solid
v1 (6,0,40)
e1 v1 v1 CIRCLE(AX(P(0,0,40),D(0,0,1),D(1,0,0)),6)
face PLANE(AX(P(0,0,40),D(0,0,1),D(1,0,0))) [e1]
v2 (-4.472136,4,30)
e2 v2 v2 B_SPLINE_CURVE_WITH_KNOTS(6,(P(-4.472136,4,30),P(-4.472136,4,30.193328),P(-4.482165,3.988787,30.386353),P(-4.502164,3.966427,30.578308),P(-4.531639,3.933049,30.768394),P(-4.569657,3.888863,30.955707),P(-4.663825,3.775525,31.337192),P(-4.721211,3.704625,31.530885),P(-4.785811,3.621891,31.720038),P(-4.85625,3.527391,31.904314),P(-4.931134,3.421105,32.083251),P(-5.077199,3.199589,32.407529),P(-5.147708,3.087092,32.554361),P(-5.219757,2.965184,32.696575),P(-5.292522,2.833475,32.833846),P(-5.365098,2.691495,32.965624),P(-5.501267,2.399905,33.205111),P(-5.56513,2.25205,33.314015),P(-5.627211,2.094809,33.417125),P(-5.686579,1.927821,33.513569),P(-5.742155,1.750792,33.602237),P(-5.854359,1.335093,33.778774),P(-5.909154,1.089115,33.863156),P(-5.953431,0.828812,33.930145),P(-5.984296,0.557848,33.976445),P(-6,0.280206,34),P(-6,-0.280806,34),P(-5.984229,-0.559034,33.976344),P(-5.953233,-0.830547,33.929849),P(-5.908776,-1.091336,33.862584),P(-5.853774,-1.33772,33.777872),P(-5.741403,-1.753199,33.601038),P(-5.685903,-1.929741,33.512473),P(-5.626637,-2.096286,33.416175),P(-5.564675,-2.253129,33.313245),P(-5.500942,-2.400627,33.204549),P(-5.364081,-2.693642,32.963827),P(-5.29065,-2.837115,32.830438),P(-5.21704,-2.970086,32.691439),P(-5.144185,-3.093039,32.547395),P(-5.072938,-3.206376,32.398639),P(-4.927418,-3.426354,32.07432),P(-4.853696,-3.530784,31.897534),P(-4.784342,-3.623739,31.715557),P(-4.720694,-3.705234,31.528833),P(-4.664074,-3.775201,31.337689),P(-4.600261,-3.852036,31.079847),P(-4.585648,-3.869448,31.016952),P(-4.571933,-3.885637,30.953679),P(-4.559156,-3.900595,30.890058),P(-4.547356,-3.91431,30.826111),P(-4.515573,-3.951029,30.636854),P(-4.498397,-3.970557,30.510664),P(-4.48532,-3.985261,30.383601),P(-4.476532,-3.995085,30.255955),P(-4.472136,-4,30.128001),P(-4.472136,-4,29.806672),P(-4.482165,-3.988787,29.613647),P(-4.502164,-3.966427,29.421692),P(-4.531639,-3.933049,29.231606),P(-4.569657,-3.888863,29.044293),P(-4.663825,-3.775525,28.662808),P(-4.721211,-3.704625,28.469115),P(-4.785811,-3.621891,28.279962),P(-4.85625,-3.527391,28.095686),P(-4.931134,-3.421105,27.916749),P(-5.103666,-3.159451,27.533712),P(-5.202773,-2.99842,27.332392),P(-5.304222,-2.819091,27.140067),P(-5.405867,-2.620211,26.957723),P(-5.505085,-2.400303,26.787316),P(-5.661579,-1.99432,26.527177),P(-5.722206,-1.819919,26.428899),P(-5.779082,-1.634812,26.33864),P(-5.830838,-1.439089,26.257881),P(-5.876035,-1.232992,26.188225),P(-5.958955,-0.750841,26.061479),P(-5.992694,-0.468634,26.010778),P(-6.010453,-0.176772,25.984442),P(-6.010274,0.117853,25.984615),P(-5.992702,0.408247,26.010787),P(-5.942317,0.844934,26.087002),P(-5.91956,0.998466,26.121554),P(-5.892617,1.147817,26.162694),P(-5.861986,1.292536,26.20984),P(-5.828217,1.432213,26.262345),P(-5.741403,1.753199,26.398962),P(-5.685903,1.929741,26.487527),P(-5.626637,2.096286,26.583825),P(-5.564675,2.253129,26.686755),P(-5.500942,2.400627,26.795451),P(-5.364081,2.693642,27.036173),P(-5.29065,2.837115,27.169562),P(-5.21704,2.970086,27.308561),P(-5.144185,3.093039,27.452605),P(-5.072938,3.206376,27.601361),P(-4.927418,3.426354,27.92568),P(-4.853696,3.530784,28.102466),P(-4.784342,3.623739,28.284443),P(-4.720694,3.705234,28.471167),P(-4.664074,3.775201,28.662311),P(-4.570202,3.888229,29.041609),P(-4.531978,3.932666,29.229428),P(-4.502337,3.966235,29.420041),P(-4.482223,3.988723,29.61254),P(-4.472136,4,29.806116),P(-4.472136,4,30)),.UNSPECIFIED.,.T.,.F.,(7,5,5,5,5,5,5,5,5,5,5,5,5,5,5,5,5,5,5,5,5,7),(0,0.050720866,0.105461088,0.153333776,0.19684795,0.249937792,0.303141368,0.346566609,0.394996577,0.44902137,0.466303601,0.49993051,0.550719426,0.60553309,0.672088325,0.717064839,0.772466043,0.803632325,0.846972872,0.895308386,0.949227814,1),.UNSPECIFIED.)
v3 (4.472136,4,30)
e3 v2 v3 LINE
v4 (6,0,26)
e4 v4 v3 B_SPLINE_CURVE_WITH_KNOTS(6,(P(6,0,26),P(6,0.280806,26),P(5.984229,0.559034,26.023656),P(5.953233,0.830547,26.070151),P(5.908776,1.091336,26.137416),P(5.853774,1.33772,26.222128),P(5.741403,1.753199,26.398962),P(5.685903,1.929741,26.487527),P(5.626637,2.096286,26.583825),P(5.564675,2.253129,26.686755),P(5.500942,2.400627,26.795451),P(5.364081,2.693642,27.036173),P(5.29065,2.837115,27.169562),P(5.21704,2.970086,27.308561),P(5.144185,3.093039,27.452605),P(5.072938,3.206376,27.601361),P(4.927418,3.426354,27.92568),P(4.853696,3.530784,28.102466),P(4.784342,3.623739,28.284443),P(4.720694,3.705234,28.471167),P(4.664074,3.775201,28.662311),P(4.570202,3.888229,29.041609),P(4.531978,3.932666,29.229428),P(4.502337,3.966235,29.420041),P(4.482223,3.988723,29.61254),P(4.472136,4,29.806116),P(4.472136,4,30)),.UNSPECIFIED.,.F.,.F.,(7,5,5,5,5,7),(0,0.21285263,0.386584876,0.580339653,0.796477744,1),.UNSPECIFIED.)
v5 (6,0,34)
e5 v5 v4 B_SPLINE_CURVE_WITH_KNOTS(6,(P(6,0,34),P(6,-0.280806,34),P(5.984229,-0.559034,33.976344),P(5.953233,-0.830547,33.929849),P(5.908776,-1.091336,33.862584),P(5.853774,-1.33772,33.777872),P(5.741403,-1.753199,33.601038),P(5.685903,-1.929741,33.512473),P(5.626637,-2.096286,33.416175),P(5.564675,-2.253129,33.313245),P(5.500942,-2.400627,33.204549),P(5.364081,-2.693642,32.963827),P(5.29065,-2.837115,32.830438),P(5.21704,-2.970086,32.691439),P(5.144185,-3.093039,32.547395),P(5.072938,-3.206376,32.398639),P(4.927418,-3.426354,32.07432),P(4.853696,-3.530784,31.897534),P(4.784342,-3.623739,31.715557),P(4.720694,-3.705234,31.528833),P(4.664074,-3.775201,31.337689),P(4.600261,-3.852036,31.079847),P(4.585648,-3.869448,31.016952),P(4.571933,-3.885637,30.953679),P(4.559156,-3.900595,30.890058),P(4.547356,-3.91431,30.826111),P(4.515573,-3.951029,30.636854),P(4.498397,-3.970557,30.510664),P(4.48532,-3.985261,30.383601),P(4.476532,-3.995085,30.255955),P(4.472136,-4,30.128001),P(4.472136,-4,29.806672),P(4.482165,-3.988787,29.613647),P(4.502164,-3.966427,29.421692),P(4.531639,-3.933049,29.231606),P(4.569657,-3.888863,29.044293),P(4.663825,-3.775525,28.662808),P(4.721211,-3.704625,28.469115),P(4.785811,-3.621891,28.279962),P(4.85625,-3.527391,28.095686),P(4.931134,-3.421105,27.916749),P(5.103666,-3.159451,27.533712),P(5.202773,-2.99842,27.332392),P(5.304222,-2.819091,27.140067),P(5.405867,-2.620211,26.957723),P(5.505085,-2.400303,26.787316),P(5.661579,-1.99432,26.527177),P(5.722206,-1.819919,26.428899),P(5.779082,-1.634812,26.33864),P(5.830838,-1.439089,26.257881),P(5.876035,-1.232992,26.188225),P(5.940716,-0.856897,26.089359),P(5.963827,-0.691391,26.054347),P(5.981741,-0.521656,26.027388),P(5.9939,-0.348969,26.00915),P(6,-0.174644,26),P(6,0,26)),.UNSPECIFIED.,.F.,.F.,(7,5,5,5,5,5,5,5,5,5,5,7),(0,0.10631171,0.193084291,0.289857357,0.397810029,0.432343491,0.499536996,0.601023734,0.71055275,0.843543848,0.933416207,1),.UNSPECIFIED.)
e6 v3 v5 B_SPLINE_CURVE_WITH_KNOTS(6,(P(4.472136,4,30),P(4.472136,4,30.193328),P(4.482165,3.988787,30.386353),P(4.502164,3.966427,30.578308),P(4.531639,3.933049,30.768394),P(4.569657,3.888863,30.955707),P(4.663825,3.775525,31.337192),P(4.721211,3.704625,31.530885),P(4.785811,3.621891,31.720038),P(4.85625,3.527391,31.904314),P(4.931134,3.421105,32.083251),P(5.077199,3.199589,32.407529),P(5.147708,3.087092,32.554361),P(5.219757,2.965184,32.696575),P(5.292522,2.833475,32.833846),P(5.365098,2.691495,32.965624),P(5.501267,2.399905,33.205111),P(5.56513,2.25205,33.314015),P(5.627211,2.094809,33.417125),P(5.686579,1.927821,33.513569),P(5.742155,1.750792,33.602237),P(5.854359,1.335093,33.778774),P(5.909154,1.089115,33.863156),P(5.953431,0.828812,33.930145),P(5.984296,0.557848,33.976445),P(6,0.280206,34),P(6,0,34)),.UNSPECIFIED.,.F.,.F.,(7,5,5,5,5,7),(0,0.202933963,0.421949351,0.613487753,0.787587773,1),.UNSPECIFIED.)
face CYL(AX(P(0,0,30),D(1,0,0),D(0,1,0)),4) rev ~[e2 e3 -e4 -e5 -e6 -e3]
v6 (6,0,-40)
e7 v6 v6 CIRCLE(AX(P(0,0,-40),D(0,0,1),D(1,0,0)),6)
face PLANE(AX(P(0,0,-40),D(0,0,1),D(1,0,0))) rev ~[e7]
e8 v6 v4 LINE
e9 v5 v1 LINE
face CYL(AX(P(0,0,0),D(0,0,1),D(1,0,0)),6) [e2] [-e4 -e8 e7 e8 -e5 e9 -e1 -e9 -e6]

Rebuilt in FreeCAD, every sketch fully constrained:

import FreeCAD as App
import Part
import Sketcher
from FreeCAD import Vector

doc = App.newDocument("Part")
body = doc.addObject("PartDesign::Body", "Body")

# Sketch on XY plane
sketch1 = body.newObject("Sketcher::SketchObject", "Sketch")
sketch1.AttachmentSupport = (doc.getObject("XY_Plane"), [""])
sketch1.MapMode = "FlatFace"
sketch1.addGeometry(Part.Circle(Vector(0, 0, 0), Vector(0, 0, 1), 6), False)
sketch1.addConstraint([
    Sketcher.Constraint("Coincident", 0, 3, -1, 1),
    Sketcher.Constraint("Diameter", 0, 12.0),
])
pad1 = body.newObject("PartDesign::Pad", "Pad")
pad1.Profile = sketch1
pad1.Length = 80
pad1.Midplane = True

# Sketch on YZ plane
sketch2 = body.newObject("Sketcher::SketchObject", "Sketch001")
sketch2.AttachmentSupport = (doc.getObject("YZ_Plane"), [""])
sketch2.MapMode = "FlatFace"
sketch2.addGeometry(Part.Circle(Vector(0, 30, 0), Vector(0, 0, 1), 4), False)
sketch2.addConstraint([
    Sketcher.Constraint("PointOnObject", 0, 3, -2),
    Sketcher.Constraint("Diameter", 0, 8.0),
    Sketcher.Constraint("DistanceY", -1, 1, 0, 3, 30.0),
])
pocket1 = body.newObject("PartDesign::Pocket", "Pocket")
pocket1.Profile = sketch2
pocket1.Length = 25
pocket1.Midplane = True

doc.recompute()
